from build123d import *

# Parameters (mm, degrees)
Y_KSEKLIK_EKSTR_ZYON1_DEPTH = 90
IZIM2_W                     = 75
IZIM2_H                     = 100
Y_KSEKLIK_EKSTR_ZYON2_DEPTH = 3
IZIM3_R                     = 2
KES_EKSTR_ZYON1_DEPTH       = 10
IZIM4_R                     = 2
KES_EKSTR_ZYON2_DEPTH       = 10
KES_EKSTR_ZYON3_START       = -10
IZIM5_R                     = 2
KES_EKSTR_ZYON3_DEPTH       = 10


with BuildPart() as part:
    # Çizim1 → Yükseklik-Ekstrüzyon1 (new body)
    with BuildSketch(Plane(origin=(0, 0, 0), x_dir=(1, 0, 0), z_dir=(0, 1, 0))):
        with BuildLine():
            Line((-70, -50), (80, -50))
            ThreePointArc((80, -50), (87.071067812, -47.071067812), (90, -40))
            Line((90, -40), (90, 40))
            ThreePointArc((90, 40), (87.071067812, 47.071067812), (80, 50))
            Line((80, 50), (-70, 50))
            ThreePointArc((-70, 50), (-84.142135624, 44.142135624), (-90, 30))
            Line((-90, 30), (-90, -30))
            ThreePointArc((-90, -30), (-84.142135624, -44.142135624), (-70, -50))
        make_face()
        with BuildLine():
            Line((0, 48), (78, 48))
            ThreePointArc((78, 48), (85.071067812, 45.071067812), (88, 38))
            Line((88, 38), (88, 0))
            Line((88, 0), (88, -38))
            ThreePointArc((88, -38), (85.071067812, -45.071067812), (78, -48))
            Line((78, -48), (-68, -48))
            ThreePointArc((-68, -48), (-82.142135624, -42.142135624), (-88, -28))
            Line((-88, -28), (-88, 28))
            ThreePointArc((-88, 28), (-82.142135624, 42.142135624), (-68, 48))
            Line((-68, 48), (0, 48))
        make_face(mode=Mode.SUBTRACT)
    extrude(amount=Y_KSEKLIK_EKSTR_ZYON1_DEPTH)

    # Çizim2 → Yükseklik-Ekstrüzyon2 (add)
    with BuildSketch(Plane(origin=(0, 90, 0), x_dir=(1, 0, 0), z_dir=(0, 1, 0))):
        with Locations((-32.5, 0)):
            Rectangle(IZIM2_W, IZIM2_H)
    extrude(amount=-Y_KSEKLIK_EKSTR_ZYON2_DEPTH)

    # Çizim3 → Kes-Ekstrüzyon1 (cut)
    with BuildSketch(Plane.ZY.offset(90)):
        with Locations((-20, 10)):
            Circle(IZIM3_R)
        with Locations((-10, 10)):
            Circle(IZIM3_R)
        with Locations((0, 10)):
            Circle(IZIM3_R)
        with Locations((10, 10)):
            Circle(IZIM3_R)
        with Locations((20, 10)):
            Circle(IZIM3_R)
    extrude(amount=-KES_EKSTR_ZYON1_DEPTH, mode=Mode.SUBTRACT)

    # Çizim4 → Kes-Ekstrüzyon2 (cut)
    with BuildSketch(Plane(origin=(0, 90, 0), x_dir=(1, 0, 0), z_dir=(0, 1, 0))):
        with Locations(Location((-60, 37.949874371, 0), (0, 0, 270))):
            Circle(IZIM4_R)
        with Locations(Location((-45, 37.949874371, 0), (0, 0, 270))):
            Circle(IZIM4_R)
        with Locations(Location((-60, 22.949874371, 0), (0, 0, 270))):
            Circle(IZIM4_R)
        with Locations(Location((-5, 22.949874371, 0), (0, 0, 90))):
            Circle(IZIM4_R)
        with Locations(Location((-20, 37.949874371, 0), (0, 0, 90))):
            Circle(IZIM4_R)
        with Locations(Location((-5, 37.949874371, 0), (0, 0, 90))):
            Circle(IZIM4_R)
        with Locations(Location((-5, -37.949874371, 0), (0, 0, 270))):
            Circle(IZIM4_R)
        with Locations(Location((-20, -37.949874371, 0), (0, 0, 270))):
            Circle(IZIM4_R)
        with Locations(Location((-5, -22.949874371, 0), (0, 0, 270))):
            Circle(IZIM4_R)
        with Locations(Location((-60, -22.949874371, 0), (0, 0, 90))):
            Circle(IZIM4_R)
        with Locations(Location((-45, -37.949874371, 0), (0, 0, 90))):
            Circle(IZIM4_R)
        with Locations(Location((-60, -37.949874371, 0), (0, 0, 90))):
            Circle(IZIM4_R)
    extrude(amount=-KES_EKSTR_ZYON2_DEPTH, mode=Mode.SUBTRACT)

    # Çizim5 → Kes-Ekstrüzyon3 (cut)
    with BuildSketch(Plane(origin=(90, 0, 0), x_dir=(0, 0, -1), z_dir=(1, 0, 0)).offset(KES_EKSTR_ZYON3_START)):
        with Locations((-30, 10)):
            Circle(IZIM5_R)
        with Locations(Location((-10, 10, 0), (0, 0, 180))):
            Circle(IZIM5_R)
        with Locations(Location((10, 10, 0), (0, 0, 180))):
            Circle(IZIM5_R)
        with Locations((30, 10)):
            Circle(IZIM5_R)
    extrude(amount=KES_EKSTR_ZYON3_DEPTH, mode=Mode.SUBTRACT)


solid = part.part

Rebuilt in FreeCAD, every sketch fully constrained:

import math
import FreeCAD as App
import Part
import Sketcher

doc = App.newDocument("Part")
body = doc.addObject("PartDesign::Body", "Body")

# Sketch on XZ plane
sketch1 = body.newObject("Sketcher::SketchObject", "Sketch")
sketch1.AttachmentSupport = (doc.getObject("XZ_Plane"), [""])
sketch1.MapMode = "FlatFace"
sketch1.addGeometry(Part.LineSegment(App.Vector(-70, 50, 0), App.Vector(80, 50, 0)), False)
sketch1.addGeometry(Part.ArcOfCircle(Part.Circle(App.Vector(80, 40, 0), App.Vector(0, 0, 1), 10), math.radians(0), math.radians(90)), False)
sketch1.addGeometry(Part.LineSegment(App.Vector(90, 40, 0), App.Vector(90, -40, 0)), False)
sketch1.addGeometry(Part.ArcOfCircle(Part.Circle(App.Vector(80, -40, 0), App.Vector(0, 0, 1), 10), math.radians(-90), math.radians(0)), False)
sketch1.addGeometry(Part.LineSegment(App.Vector(80, -50, 0), App.Vector(-70, -50, 0)), False)
sketch1.addGeometry(Part.ArcOfCircle(Part.Circle(App.Vector(-70, -30, 0), App.Vector(0, 0, 1), 20), math.radians(180), math.radians(270)), False)
sketch1.addGeometry(Part.LineSegment(App.Vector(-90, -30, 0), App.Vector(-90, 30, 0)), False)
sketch1.addGeometry(Part.ArcOfCircle(Part.Circle(App.Vector(-70, 30, 0), App.Vector(0, 0, 1), 20), math.radians(90), math.radians(180)), False)
sketch1.addGeometry(Part.LineSegment(App.Vector(-68, -48, 0), App.Vector(78, -48, 0)), False)
sketch1.addGeometry(Part.ArcOfCircle(Part.Circle(App.Vector(78, -38, 0), App.Vector(0, 0, 1), 10), math.radians(-90), math.radians(0)), False)
sketch1.addGeometry(Part.LineSegment(App.Vector(88, -38, 0), App.Vector(88, 38, 0)), False)
sketch1.addGeometry(Part.ArcOfCircle(Part.Circle(App.Vector(78, 38, 0), App.Vector(0, 0, 1), 10), math.radians(0), math.radians(90)), False)
sketch1.addGeometry(Part.LineSegment(App.Vector(78, 48, 0), App.Vector(-68, 48, 0)), False)
sketch1.addGeometry(Part.ArcOfCircle(Part.Circle(App.Vector(-68, 28, 0), App.Vector(0, 0, 1), 20), math.radians(90), math.radians(180)), False)
sketch1.addGeometry(Part.LineSegment(App.Vector(-88, 28, 0), App.Vector(-88, -28, 0)), False)
sketch1.addGeometry(Part.ArcOfCircle(Part.Circle(App.Vector(-68, -28, 0), App.Vector(0, 0, 1), 20), math.radians(180), math.radians(270)), False)
sketch1.addConstraint(Sketcher.Constraint("Tangent", 0, 2, 1, 2))
sketch1.addConstraint(Sketcher.Constraint("Tangent", 1, 1, 2, 1))
sketch1.addConstraint(Sketcher.Constraint("Tangent", 2, 2, 3, 2))
sketch1.addConstraint(Sketcher.Constraint("Tangent", 3, 1, 4, 1))
sketch1.addConstraint(Sketcher.Constraint("Tangent", 4, 2, 5, 2))
sketch1.addConstraint(Sketcher.Constraint("Tangent", 5, 1, 6, 1))
sketch1.addConstraint(Sketcher.Constraint("Tangent", 6, 2, 7, 2))
sketch1.addConstraint(Sketcher.Constraint("Tangent", 7, 1, 0, 1))
sketch1.addConstraint(Sketcher.Constraint("Tangent", 8, 2, 9, 1))
sketch1.addConstraint(Sketcher.Constraint("Tangent", 9, 2, 10, 1))
sketch1.addConstraint(Sketcher.Constraint("Tangent", 10, 2, 11, 1))
sketch1.addConstraint(Sketcher.Constraint("Tangent", 11, 2, 12, 1))
sketch1.addConstraint(Sketcher.Constraint("Tangent", 12, 2, 13, 1))
sketch1.addConstraint(Sketcher.Constraint("Tangent", 13, 2, 14, 1))
sketch1.addConstraint(Sketcher.Constraint("Tangent", 14, 2, 15, 1))
sketch1.addConstraint(Sketcher.Constraint("Tangent", 15, 2, 8, 1))
sketch1.addConstraint(Sketcher.Constraint("Horizontal", 0))
sketch1.addConstraint(Sketcher.Constraint("Vertical", 2))
sketch1.addConstraint(Sketcher.Constraint("Horizontal", 4))
sketch1.addConstraint(Sketcher.Constraint("Vertical", 6))
sketch1.addConstraint(Sketcher.Constraint("Horizontal", 8))
sketch1.addConstraint(Sketcher.Constraint("Vertical", 10))
sketch1.addConstraint(Sketcher.Constraint("Horizontal", 12))
sketch1.addConstraint(Sketcher.Constraint("Vertical", 14))
sketch1.addConstraint(Sketcher.Constraint("Equal", 1, 3))
sketch1.addConstraint(Sketcher.Constraint("Equal", 5, 7))
sketch1.addConstraint(Sketcher.Constraint("Equal", 3, 9))
sketch1.addConstraint(Sketcher.Constraint("Equal", 9, 11))
sketch1.addConstraint(Sketcher.Constraint("Equal", 7, 13))
sketch1.addConstraint(Sketcher.Constraint("Equal", 13, 15))
sketch1.addConstraint(Sketcher.Constraint("Radius", 1, 10.0))
sketch1.addConstraint(Sketcher.Constraint("Radius", 5, 20.0))
sketch1.addConstraint(Sketcher.Constraint("DistanceX", 0, 1, 0, 2, 150.0))
sketch1.addConstraint(Sketcher.Constraint("DistanceX", 8, 1, 8, 2, 146.0))
sketch1.addConstraint(Sketcher.Constraint("DistanceY", 2, 2, 2, 1, 80.0))
sketch1.addConstraint(Sketcher.Constraint("DistanceY", 10, 1, 10, 2, 76.0))
sketch1.addConstraint(Sketcher.Constraint("DistanceX", -1, 1, 1, 3, 80.0))
sketch1.addConstraint(Sketcher.Constraint("DistanceY", -1, 1, 1, 3, 40.0))
sketch1.addConstraint(Sketcher.Constraint("DistanceX", -1, 1, 9, 3, 78.0))
sketch1.addConstraint(Sketcher.Constraint("DistanceY", 9, 3, -1, 1, 38.0))
pad1 = body.newObject("PartDesign::Pad", "Pad")
pad1.Profile = sketch1
pad1.Length = 90
pad1.Reversed = True

# Sketch on XZ plane
sketch2 = body.newObject("Sketcher::SketchObject", "Sketch001")
sketch2.AttachmentSupport = (doc.getObject("XZ_Plane"), [""])
sketch2.MapMode = "FlatFace"
sketch2.AttachmentOffset = App.Placement(App.Vector(0, 0, -90), App.Rotation())
sketch2.addGeometry(Part.LineSegment(App.Vector(-70, -50, 0), App.Vector(-70, 50, 0)), False)
sketch2.addGeometry(Part.LineSegment(App.Vector(-70, 50, 0), App.Vector(5, 50, 0)), False)
sketch2.addGeometry(Part.LineSegment(App.Vector(5, 50, 0), App.Vector(5, -50, 0)), False)
sketch2.addGeometry(Part.LineSegment(App.Vector(5, -50, 0), App.Vector(-70, -50, 0)), False)
sketch2.addConstraint(Sketcher.Constraint("Coincident", 0, 2, 1, 1))
sketch2.addConstraint(Sketcher.Constraint("Coincident", 1, 2, 2, 1))
sketch2.addConstraint(Sketcher.Constraint("Coincident", 2, 2, 3, 1))
sketch2.addConstraint(Sketcher.Constraint("Coincident", 3, 2, 0, 1))
sketch2.addConstraint(Sketcher.Constraint("Vertical", 0))
sketch2.addConstraint(Sketcher.Constraint("Horizontal", 1))
sketch2.addConstraint(Sketcher.Constraint("Vertical", 2))
sketch2.addConstraint(Sketcher.Constraint("Horizontal", 3))
sketch2.addConstraint(Sketcher.Constraint("DistanceX", 1, 1, 1, 2, 75.0))
sketch2.addConstraint(Sketcher.Constraint("DistanceY", 0, 1, 0, 2, 100.0))
sketch2.addConstraint(Sketcher.Constraint("DistanceX", 0, 2, -1, 1, 70.0))
sketch2.addConstraint(Sketcher.Constraint("DistanceY", -1, 1, 0, 2, 50.0))
pad2 = body.newObject("PartDesign::Pad", "Pad001")
pad2.Profile = sketch2
pad2.Length = 3

# Sketch on YZ plane
sketch3 = body.newObject("Sketcher::SketchObject", "Sketch002")
sketch3.AttachmentSupport = (doc.getObject("YZ_Plane"), [""])
sketch3.MapMode = "FlatFace"
sketch3.AttachmentOffset = App.Placement(App.Vector(0, 0, -90), App.Rotation())
sketch3.addGeometry(Part.Circle(App.Vector(10, -20, 0), App.Vector(0, 0, 1), 2), False)
sketch3.addGeometry(Part.Circle(App.Vector(10, -10, 0), App.Vector(0, 0, 1), 2), False)
sketch3.addGeometry(Part.Circle(App.Vector(10, 0, 0), App.Vector(0, 0, 1), 2), False)
sketch3.addGeometry(Part.Circle(App.Vector(10, 10, 0), App.Vector(0, 0, 1), 2), False)
sketch3.addGeometry(Part.Circle(App.Vector(10, 20, 0), App.Vector(0, 0, 1), 2), False)
sketch3.addConstraint(Sketcher.Constraint("Equal", 0, 1))
sketch3.addConstraint(Sketcher.Constraint("Equal", 1, 2))
sketch3.addConstraint(Sketcher.Constraint("Equal", 2, 3))
sketch3.addConstraint(Sketcher.Constraint("Equal", 3, 4))
sketch3.addConstraint(Sketcher.Constraint("Symmetric", 1, 3, 3, 3, -1))
sketch3.addConstraint(Sketcher.Constraint("Symmetric", 0, 3, 4, 3, -1))
sketch3.addConstraint(Sketcher.Constraint("PointOnObject", 2, 3, -1))
sketch3.addConstraint(Sketcher.Constraint("Vertical", 0, 3, 1, 3))
sketch3.addConstraint(Sketcher.Constraint("Vertical", 1, 3, 2, 3))
sketch3.addConstraint(Sketcher.Constraint("Diameter", 0, 4.0))
sketch3.addConstraint(Sketcher.Constraint("DistanceX", -1, 1, 0, 3, 10.0))
sketch3.addConstraint(Sketcher.Constraint("DistanceY", 0, 3, -1, 1, 20.0))
sketch3.addConstraint(Sketcher.Constraint("DistanceY", 1, 3, -1, 1, 10.0))
pocket1 = body.newObject("PartDesign::Pocket", "Pocket")
pocket1.Profile = sketch3
pocket1.Length = 10
pocket1.Reversed = True

# Sketch on XZ plane
sketch4 = body.newObject("Sketcher::SketchObject", "Sketch003")
sketch4.AttachmentSupport = (doc.getObject("XZ_Plane"), [""])
sketch4.MapMode = "FlatFace"
sketch4.AttachmentOffset = App.Placement(App.Vector(0, 0, -90), App.Rotation())
sketch4.addGeometry(Part.Circle(App.Vector(-60, -37.9, 0), App.Vector(0, 0, 1), 2), False)
sketch4.addGeometry(Part.Circle(App.Vector(-45, -37.9, 0), App.Vector(0, 0, 1), 2), False)
sketch4.addGeometry(Part.Circle(App.Vector(-60, -22.9, 0), App.Vector(0, 0, 1), 2), False)
sketch4.addGeometry(Part.Circle(App.Vector(-5, -22.9, 0), App.Vector(0, 0, 1), 2), False)
sketch4.addGeometry(Part.Circle(App.Vector(-20, -37.9, 0), App.Vector(0, 0, 1), 2), False)
sketch4.addGeometry(Part.Circle(App.Vector(-5, -37.9, 0), App.Vector(0, 0, 1), 2), False)
sketch4.addGeometry(Part.Circle(App.Vector(-5, 37.9, 0), App.Vector(0, 0, 1), 2), False)
sketch4.addGeometry(Part.Circle(App.Vector(-20, 37.9, 0), App.Vector(0, 0, 1), 2), False)
sketch4.addGeometry(Part.Circle(App.Vector(-5, 22.9, 0), App.Vector(0, 0, 1), 2), False)
sketch4.addGeometry(Part.Circle(App.Vector(-60, 22.9, 0), App.Vector(0, 0, 1), 2), False)
sketch4.addGeometry(Part.Circle(App.Vector(-45, 37.9, 0), App.Vector(0, 0, 1), 2), False)
sketch4.addGeometry(Part.Circle(App.Vector(-60, 37.9, 0), App.Vector(0, 0, 1), 2), False)
sketch4.addConstraint(Sketcher.Constraint("Equal", 0, 1))
sketch4.addConstraint(Sketcher.Constraint("Equal", 1, 2))
sketch4.addConstraint(Sketcher.Constraint("Equal", 2, 3))
sketch4.addConstraint(Sketcher.Constraint("Equal", 3, 4))
sketch4.addConstraint(Sketcher.Constraint("Equal", 4, 5))
sketch4.addConstraint(Sketcher.Constraint("Equal", 5, 6))
sketch4.addConstraint(Sketcher.Constraint("Equal", 6, 7))
sketch4.addConstraint(Sketcher.Constraint("Equal", 7, 8))
sketch4.addConstraint(Sketcher.Constraint("Equal", 8, 9))
sketch4.addConstraint(Sketcher.Constraint("Equal", 9, 10))
sketch4.addConstraint(Sketcher.Constraint("Equal", 10, 11))
sketch4.addConstraint(Sketcher.Constraint("Symmetric", 5, 3, 6, 3, -1))
sketch4.addConstraint(Sketcher.Constraint("Symmetric", 4, 3, 7, 3, -1))
sketch4.addConstraint(Sketcher.Constraint("Symmetric", 3, 3, 8, 3, -1))
sketch4.addConstraint(Sketcher.Constraint("Symmetric", 2, 3, 9, 3, -1))
sketch4.addConstraint(Sketcher.Constraint("Symmetric", 1, 3, 10, 3, -1))
sketch4.addConstraint(Sketcher.Constraint("Symmetric", 0, 3, 11, 3, -1))
sketch4.addConstraint(Sketcher.Constraint("Horizontal", 0, 3, 1, 3))
sketch4.addConstraint(Sketcher.Constraint("Horizontal", 2, 3, 3, 3))
sketch4.addConstraint(Sketcher.Constraint("Horizontal", 1, 3, 4, 3))
sketch4.addConstraint(Sketcher.Constraint("Horizontal", 4, 3, 5, 3))
sketch4.addConstraint(Sketcher.Constraint("Vertical", 0, 3, 2, 3))
sketch4.addConstraint(Sketcher.Constraint("Vertical", 3, 3, 5, 3))
sketch4.addConstraint(Sketcher.Constraint("Diameter", 0, 4.0))
sketch4.addConstraint(Sketcher.Constraint("DistanceX", 0, 3, -1, 1, 60.0))
sketch4.addConstraint(Sketcher.Constraint("DistanceX", 1, 3, -1, 1, 45.0))
sketch4.addConstraint(Sketcher.Constraint("DistanceX", 3, 3, -1, 1, 5.0))
sketch4.addConstraint(Sketcher.Constraint("DistanceX", 4, 3, -1, 1, 20.0))
sketch4.addConstraint(Sketcher.Constraint("DistanceY", 0, 3, 2, 3, 15.0))
sketch4.addConstraint(Sketcher.Constraint("DistanceY", 3, 3, 6, 3, 60.899749))
pocket2 = body.newObject("PartDesign::Pocket", "Pocket001")
pocket2.Profile = sketch4
pocket2.Length = 10
pocket2.Reversed = True

# Sketch on YZ plane
sketch5 = body.newObject("Sketcher::SketchObject", "Sketch004")
sketch5.AttachmentSupport = (doc.getObject("YZ_Plane"), [""])
sketch5.MapMode = "FlatFace"
sketch5.AttachmentOffset = App.Placement(App.Vector(0, 0, 80), App.Rotation())
sketch5.addGeometry(Part.Circle(App.Vector(10, 30, 0), App.Vector(0, 0, 1), 2), False)
sketch5.addGeometry(Part.Circle(App.Vector(10, 10, 0), App.Vector(0, 0, 1), 2), False)
sketch5.addGeometry(Part.Circle(App.Vector(10, -10, 0), App.Vector(0, 0, 1), 2), False)
sketch5.addGeometry(Part.Circle(App.Vector(10, -30, 0), App.Vector(0, 0, 1), 2), False)
sketch5.addConstraint(Sketcher.Constraint("Equal", 0, 1))
sketch5.addConstraint(Sketcher.Constraint("Equal", 1, 2))
sketch5.addConstraint(Sketcher.Constraint("Equal", 2, 3))
sketch5.addConstraint(Sketcher.Constraint("Symmetric", 1, 3, 2, 3, -1))
sketch5.addConstraint(Sketcher.Constraint("Symmetric", 0, 3, 3, 3, -1))
sketch5.addConstraint(Sketcher.Constraint("Vertical", 0, 3, 1, 3))
sketch5.addConstraint(Sketcher.Constraint("Diameter", 0, 4.0))
sketch5.addConstraint(Sketcher.Constraint("DistanceX", -1, 1, 0, 3, 10.0))
sketch5.addConstraint(Sketcher.Constraint("DistanceY", -1, 1, 0, 3, 30.0))
sketch5.addConstraint(Sketcher.Constraint("DistanceY", -1, 1, 1, 3, 10.0))
pocket3 = body.newObject("PartDesign::Pocket", "Pocket002")
pocket3.Profile = sketch5
pocket3.Length = 10
pocket3.Reversed = True

doc.recompute()
